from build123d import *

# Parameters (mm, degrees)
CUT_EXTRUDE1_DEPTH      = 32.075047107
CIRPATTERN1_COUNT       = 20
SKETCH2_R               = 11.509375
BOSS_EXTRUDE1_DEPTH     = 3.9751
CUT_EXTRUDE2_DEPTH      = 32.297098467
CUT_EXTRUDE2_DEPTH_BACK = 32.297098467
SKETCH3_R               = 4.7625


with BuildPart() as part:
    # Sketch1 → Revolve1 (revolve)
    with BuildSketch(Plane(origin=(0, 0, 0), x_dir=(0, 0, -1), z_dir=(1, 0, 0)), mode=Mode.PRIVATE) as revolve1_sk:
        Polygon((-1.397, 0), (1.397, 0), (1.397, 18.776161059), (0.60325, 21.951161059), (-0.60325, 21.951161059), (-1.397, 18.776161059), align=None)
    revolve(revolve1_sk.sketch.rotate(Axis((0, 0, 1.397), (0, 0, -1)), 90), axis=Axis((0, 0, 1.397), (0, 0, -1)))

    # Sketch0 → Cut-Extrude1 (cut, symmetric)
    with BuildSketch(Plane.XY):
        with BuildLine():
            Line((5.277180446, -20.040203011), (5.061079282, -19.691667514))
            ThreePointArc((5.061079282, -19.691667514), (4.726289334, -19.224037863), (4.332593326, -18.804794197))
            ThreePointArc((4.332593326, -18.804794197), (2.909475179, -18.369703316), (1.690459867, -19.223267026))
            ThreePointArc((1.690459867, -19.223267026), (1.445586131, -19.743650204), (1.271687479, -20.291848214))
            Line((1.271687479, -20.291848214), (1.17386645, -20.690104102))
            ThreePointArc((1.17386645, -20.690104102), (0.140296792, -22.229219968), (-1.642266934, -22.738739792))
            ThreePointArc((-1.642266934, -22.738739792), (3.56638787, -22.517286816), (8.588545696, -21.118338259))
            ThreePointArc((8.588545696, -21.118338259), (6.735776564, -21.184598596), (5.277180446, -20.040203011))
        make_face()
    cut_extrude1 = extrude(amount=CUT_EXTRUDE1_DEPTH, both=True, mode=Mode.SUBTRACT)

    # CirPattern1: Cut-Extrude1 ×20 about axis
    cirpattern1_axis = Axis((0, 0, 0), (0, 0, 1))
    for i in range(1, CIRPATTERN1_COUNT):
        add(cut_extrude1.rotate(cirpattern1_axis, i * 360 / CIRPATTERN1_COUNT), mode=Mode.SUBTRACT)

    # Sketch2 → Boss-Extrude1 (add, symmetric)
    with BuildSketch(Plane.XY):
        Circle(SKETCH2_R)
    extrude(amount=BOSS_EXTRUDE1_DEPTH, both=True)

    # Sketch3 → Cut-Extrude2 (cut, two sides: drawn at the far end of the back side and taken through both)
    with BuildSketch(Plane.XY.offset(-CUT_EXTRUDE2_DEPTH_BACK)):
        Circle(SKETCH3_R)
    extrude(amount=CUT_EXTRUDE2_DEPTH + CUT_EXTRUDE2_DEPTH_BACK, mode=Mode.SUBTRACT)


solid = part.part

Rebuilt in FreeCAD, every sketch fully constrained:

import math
import FreeCAD as App
import Part
import Sketcher
Q = App.Units.Quantity

doc = App.newDocument("Part")
body = doc.addObject("PartDesign::Body", "Body")

sketch1 = body.newObject("Sketcher::SketchObject", "Sketch")
sketch1.AttachmentSupport = (doc.getObject("YZ_Plane"), [""])
sketch1.MapMode = "FlatFace"
sketch1.addGeometry(Part.LineSegment(App.Vector(0, 1.4, 0), App.Vector(0, -1.4, 0)), False)
sketch1.addGeometry(Part.LineSegment(App.Vector(0, -1.4, 0), App.Vector(18.8, -1.4, 0)), False)
sketch1.addGeometry(Part.LineSegment(App.Vector(18.8, -1.4, 0), App.Vector(22, -0.6, 0)), False)
sketch1.addGeometry(Part.LineSegment(App.Vector(22, -0.6, 0), App.Vector(22, 0.6, 0)), False)
sketch1.addGeometry(Part.LineSegment(App.Vector(22, 0.6, 0), App.Vector(18.8, 1.4, 0)), False)
sketch1.addGeometry(Part.LineSegment(App.Vector(18.8, 1.4, 0), App.Vector(0, 1.4, 0)), False)
sketch1.addConstraint(Sketcher.Constraint("Coincident", 0, 2, 1, 1))
sketch1.addConstraint(Sketcher.Constraint("Coincident", 1, 2, 2, 1))
sketch1.addConstraint(Sketcher.Constraint("Coincident", 2, 2, 3, 1))
sketch1.addConstraint(Sketcher.Constraint("Coincident", 3, 2, 4, 1))
sketch1.addConstraint(Sketcher.Constraint("Coincident", 4, 2, 5, 1))
sketch1.addConstraint(Sketcher.Constraint("Coincident", 5, 2, 0, 1))
sketch1.addConstraint(Sketcher.Constraint("Vertical", 0))
sketch1.addConstraint(Sketcher.Constraint("Horizontal", 1))
sketch1.addConstraint(Sketcher.Constraint("Vertical", 3))
sketch1.addConstraint(Sketcher.Constraint("Horizontal", 5))
sketch1.addConstraint(Sketcher.Constraint("Symmetric", 0, 2, 5, 2, -1, 1))
sketch1.addConstraint(Sketcher.Constraint("Vertical", 1, 2, 4, 2))
sketch1.addConstraint(Sketcher.Constraint("Equal", 2, 4))
sketch1.addConstraint(Sketcher.Constraint("DistanceY", 0, 2, 0, 1, Q("0.11 in")))
sketch1.addConstraint(Sketcher.Constraint("DistanceY", 3, 1, 3, 2, Q("0.0475 in")))
sketch1.addConstraint(Sketcher.Constraint("DistanceX", 1, 2, 2, 2, Q("0.125 in")))
sketch1.addConstraint(Sketcher.Constraint("DistanceX", 1, 1, 1, 2, 18.776161))
revolution = body.newObject("PartDesign::Revolution", "Revolution")
revolution.Profile = sketch1
revolution.ReferenceAxis = (sketch1, ["V_Axis"])
revolution.Angle = 360

sketch2 = body.newObject("Sketcher::SketchObject", "Sketch001")
sketch2.AttachmentSupport = (doc.getObject("XY_Plane"), [""])
sketch2.MapMode = "FlatFace"
sketch2.addGeometry(Part.LineSegment(App.Vector(5.28, -20.04, 0), App.Vector(5.06, -19.69, 0)), False)
sketch2.addGeometry(Part.ArcOfCircle(Part.Circle(App.Vector(1.37, -21.98, 0), App.Vector(0, 0, 1), 4.34), math.radians(31.8), math.radians(47)), False)
sketch2.addGeometry(Part.ArcOfCircle(Part.Circle(App.Vector(3.17, -20.05, 0), App.Vector(0, 0, 1), 1.7), math.radians(47), math.radians(151)), False)
sketch2.addGeometry(Part.ArcOfCircle(Part.Circle(App.Vector(5.49, -21.33, 0), App.Vector(0, 0, 1), 4.34), math.radians(151), math.radians(166.2)), False)
sketch2.addGeometry(Part.LineSegment(App.Vector(1.27, -20.29, 0), App.Vector(1.17, -20.69, 0)), False)
sketch2.addGeometry(Part.ArcOfCircle(Part.Circle(App.Vector(-1.45, -20.05, 0), App.Vector(0, 0, 1), 2.7), math.radians(-94), math.radians(-14)), False)
sketch2.addGeometry(Part.ArcOfCircle(Part.Circle(App.Vector(0, 0, 0), App.Vector(0, 0, 1), 22.8), math.radians(-94), math.radians(-68)), False)
sketch2.addGeometry(Part.ArcOfCircle(Part.Circle(App.Vector(7.57, -18.62, 0), App.Vector(0, 0, 1), 2.7), math.radians(-148), math.radians(-68)), False)
sketch2.addConstraint(Sketcher.Constraint("Tangent", 0, 2, 1, 1))
sketch2.addConstraint(Sketcher.Constraint("Tangent", 1, 2, 2, 1))
sketch2.addConstraint(Sketcher.Constraint("Tangent", 2, 2, 3, 1))
sketch2.addConstraint(Sketcher.Constraint("Tangent", 3, 2, 4, 1))
sketch2.addConstraint(Sketcher.Constraint("Tangent", 4, 2, 5, 2))
sketch2.addConstraint(Sketcher.Constraint("Tangent", 5, 1, 6, 1))
sketch2.addConstraint(Sketcher.Constraint("Tangent", 6, 2, 7, 2))
sketch2.addConstraint(Sketcher.Constraint("Tangent", 7, 1, 0, 1))
sketch2.addConstraint(Sketcher.Constraint("Coincident", 6, 3, -1, 1))
sketch2.addConstraint(Sketcher.Constraint("Equal", 1, 3))
sketch2.addConstraint(Sketcher.Constraint("Equal", 5, 7))
sketch2.addConstraint(Sketcher.Constraint("Horizontal", 2, 3, 5, 3))
sketch2.addConstraint(Sketcher.Constraint("Equal", 0, 4))
sketch2.addConstraint(Sketcher.Constraint("Angle", 0, Q("121.8 deg")))
sketch2.addConstraint(Sketcher.Constraint("Angle", 4, Q("-103.8 deg")))
sketch2.addConstraint(Sketcher.Constraint("DistanceX", -1, 1, 2, 3, Q("0.125 in")))
sketch2.addConstraint(Sketcher.Constraint("DistanceX", 5, 3, -1, 1, Q("0.057 in")))
sketch2.addConstraint(Sketcher.Constraint("Radius", 1, 4.338955))
sketch2.addConstraint(Sketcher.Constraint("Radius", 2, 1.697355))
sketch2.addConstraint(Sketcher.Constraint("Radius", 5, 2.699592))
sketch2.addConstraint(Sketcher.Constraint("Radius", 6, 22.797968))
pocket1 = body.newObject("PartDesign::Pocket", "Pocket")
pocket1.Profile = sketch2
pocket1.Length = 64.150094
pocket1.Midplane = True
doc.recompute()

polarpattern = body.newObject("PartDesign::PolarPattern", "PolarPattern")
polarpattern.Originals = [pocket1]
polarpattern.Axis = (doc.getObject("Z_Axis"), [""])
polarpattern.Angle = 360
polarpattern.Occurrences = 20
body.Tip = polarpattern

sketch3 = body.newObject("Sketcher::SketchObject", "Sketch002")
sketch3.AttachmentSupport = (doc.getObject("XY_Plane"), [""])
sketch3.MapMode = "FlatFace"
sketch3.addGeometry(Part.Circle(App.Vector(0, 0, 0), App.Vector(0, 0, 1), 12), False)
sketch3.addConstraint(Sketcher.Constraint("Coincident", 0, 3, -1, 1))
sketch3.addConstraint(Sketcher.Constraint("Diameter", 0, Q("0.90625 in")))
pad1 = body.newObject("PartDesign::Pad", "Pad")
pad1.Profile = sketch3
pad1.Length = Q("0.313 in")
pad1.Midplane = True

sketch4 = body.newObject("Sketcher::SketchObject", "Sketch003")
sketch4.AttachmentSupport = (doc.getObject("XY_Plane"), [""])
sketch4.MapMode = "FlatFace"
sketch4.addGeometry(Part.Circle(App.Vector(0, 0, 0), App.Vector(0, 0, 1), 4.8), False)
sketch4.addConstraint(Sketcher.Constraint("Coincident", 0, 3, -1, 1))
sketch4.addConstraint(Sketcher.Constraint("Diameter", 0, Q("0.375 in")))
pocket2 = body.newObject("PartDesign::Pocket", "Pocket001")
pocket2.Profile = sketch4
pocket2.Type = "ThroughAll"
pocket2.Midplane = True

doc.recompute()
